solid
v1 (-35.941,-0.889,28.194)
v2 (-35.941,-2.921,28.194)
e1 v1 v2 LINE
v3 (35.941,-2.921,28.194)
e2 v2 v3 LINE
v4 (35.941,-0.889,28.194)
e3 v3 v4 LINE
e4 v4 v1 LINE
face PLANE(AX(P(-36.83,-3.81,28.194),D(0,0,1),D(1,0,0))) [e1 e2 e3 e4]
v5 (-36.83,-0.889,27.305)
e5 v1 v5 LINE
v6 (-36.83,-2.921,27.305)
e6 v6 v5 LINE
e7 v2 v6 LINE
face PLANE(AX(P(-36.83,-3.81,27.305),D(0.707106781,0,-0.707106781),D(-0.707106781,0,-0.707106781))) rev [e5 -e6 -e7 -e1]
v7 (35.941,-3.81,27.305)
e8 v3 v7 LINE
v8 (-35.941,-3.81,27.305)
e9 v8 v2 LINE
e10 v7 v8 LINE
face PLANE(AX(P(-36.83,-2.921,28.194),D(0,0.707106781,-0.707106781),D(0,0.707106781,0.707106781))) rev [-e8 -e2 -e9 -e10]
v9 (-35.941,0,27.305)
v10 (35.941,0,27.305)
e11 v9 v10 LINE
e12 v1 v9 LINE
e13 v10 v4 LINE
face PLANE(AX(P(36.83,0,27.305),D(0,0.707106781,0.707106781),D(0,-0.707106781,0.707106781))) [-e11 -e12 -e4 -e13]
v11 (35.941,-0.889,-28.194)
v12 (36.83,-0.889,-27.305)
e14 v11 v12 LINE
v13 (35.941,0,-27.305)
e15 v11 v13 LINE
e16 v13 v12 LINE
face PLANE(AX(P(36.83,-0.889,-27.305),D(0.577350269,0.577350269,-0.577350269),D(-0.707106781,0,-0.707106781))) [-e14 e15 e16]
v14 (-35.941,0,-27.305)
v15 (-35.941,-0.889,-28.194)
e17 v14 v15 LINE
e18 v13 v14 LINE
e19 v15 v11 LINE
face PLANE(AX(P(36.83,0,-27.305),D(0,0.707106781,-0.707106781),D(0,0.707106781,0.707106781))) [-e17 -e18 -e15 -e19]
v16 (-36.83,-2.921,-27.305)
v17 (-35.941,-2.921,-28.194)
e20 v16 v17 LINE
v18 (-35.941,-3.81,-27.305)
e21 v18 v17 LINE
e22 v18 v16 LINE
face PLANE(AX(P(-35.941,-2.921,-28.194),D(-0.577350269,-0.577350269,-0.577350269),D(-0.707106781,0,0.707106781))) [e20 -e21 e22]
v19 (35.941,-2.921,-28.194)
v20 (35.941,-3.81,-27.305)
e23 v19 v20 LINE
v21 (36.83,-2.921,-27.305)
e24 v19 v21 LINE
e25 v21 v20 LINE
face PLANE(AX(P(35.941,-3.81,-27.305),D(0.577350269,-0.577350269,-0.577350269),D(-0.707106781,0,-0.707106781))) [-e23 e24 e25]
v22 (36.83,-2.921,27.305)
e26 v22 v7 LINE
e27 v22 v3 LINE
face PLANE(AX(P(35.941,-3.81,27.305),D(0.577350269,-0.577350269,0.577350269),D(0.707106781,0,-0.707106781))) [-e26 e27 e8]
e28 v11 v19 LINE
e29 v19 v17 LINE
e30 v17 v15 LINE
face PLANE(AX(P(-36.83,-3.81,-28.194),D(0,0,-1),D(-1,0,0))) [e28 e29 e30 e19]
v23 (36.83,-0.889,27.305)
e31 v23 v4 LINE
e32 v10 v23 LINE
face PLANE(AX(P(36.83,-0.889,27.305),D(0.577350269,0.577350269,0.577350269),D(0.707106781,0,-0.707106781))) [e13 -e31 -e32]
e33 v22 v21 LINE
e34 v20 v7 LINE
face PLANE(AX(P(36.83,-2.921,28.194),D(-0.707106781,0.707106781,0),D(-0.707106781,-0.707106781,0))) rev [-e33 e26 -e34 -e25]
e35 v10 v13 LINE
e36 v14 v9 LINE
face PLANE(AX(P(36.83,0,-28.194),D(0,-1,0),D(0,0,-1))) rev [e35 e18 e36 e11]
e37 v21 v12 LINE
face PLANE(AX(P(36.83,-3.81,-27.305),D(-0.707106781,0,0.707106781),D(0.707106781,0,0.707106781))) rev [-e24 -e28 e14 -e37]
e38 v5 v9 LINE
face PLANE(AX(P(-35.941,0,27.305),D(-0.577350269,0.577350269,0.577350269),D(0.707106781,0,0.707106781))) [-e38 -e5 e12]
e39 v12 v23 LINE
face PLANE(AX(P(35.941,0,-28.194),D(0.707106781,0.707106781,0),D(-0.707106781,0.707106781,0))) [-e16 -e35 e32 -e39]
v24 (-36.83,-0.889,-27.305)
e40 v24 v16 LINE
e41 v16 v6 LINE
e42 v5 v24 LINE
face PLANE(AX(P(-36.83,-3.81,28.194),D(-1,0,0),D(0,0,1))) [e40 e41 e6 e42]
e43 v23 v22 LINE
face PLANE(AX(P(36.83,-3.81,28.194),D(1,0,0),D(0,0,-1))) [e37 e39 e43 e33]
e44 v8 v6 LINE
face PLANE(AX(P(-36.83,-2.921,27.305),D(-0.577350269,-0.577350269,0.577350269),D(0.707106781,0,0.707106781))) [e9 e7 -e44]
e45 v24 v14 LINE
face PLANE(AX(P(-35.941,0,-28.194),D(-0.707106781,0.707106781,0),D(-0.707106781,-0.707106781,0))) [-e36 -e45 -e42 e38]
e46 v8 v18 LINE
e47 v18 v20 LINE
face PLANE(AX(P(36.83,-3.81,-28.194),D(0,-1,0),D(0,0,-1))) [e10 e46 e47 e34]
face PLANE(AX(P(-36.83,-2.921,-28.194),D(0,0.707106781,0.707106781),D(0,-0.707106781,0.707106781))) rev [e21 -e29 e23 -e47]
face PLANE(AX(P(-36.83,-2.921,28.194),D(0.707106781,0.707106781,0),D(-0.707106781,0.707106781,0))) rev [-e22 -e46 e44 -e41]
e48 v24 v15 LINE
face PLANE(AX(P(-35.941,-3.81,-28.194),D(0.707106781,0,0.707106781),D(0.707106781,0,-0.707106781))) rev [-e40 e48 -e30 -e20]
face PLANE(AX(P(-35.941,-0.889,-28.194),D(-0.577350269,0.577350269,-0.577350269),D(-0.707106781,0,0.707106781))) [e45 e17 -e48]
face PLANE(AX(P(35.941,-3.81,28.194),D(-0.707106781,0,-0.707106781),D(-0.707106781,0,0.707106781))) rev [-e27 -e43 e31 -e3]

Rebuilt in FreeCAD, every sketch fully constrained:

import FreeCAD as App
import Part
import Sketcher

V = App.Vector
Q = App.Units.Quantity


def add_polygon(sketch, points):
    """Adds a closed chain of lines whose ends are joined by coincident constraints."""
    first, n = sketch.GeometryCount, len(points)
    for a, b in zip(points, points[1:] + points[:1]):
        sketch.addGeometry(Part.LineSegment(App.Vector(*a, 0), App.Vector(*b, 0)), False)
    for i in range(n):
        sketch.addConstraint(Sketcher.Constraint("Coincident", first + i, 2, first + (i + 1) % n, 1))

doc = App.newDocument("Part")
body = doc.addObject("PartDesign::Body", "Body")

sketch1 = body.newObject("Sketcher::SketchObject", "Sketch")
sketch1.AttachmentSupport = (doc.getObject("XZ_Plane"), [""])
sketch1.MapMode = "FlatFace"
add_polygon(sketch1, [(-37, -28), (-37, 28), (37, 28), (37, -28)])
sketch1.addConstraint([
    Sketcher.Constraint("Vertical", 0),
    Sketcher.Constraint("Horizontal", 1),
    Sketcher.Constraint("Vertical", 2),
    Sketcher.Constraint("Horizontal", 3),
    Sketcher.Constraint("Symmetric", 0, 2, 2, 2, -1, 1),
    Sketcher.Constraint("DistanceX", 1, 1, 1, 2, Q("2.9 in")),
    Sketcher.Constraint("DistanceY", 0, 1, 0, 2, Q("2.22 in")),
])
pad1 = body.newObject("PartDesign::Pad", "Pad")
pad1.Profile = sketch1
pad1.Length = Q("0.15 in")
doc.recompute()

chamfer = body.newObject("PartDesign::Chamfer", "Chamfer")
chamfer.Base = (pad1, ["Edge1"])
chamfer.UseAllEdges = True
chamfer.Size = Q("0.035 in")

doc.recompute()
